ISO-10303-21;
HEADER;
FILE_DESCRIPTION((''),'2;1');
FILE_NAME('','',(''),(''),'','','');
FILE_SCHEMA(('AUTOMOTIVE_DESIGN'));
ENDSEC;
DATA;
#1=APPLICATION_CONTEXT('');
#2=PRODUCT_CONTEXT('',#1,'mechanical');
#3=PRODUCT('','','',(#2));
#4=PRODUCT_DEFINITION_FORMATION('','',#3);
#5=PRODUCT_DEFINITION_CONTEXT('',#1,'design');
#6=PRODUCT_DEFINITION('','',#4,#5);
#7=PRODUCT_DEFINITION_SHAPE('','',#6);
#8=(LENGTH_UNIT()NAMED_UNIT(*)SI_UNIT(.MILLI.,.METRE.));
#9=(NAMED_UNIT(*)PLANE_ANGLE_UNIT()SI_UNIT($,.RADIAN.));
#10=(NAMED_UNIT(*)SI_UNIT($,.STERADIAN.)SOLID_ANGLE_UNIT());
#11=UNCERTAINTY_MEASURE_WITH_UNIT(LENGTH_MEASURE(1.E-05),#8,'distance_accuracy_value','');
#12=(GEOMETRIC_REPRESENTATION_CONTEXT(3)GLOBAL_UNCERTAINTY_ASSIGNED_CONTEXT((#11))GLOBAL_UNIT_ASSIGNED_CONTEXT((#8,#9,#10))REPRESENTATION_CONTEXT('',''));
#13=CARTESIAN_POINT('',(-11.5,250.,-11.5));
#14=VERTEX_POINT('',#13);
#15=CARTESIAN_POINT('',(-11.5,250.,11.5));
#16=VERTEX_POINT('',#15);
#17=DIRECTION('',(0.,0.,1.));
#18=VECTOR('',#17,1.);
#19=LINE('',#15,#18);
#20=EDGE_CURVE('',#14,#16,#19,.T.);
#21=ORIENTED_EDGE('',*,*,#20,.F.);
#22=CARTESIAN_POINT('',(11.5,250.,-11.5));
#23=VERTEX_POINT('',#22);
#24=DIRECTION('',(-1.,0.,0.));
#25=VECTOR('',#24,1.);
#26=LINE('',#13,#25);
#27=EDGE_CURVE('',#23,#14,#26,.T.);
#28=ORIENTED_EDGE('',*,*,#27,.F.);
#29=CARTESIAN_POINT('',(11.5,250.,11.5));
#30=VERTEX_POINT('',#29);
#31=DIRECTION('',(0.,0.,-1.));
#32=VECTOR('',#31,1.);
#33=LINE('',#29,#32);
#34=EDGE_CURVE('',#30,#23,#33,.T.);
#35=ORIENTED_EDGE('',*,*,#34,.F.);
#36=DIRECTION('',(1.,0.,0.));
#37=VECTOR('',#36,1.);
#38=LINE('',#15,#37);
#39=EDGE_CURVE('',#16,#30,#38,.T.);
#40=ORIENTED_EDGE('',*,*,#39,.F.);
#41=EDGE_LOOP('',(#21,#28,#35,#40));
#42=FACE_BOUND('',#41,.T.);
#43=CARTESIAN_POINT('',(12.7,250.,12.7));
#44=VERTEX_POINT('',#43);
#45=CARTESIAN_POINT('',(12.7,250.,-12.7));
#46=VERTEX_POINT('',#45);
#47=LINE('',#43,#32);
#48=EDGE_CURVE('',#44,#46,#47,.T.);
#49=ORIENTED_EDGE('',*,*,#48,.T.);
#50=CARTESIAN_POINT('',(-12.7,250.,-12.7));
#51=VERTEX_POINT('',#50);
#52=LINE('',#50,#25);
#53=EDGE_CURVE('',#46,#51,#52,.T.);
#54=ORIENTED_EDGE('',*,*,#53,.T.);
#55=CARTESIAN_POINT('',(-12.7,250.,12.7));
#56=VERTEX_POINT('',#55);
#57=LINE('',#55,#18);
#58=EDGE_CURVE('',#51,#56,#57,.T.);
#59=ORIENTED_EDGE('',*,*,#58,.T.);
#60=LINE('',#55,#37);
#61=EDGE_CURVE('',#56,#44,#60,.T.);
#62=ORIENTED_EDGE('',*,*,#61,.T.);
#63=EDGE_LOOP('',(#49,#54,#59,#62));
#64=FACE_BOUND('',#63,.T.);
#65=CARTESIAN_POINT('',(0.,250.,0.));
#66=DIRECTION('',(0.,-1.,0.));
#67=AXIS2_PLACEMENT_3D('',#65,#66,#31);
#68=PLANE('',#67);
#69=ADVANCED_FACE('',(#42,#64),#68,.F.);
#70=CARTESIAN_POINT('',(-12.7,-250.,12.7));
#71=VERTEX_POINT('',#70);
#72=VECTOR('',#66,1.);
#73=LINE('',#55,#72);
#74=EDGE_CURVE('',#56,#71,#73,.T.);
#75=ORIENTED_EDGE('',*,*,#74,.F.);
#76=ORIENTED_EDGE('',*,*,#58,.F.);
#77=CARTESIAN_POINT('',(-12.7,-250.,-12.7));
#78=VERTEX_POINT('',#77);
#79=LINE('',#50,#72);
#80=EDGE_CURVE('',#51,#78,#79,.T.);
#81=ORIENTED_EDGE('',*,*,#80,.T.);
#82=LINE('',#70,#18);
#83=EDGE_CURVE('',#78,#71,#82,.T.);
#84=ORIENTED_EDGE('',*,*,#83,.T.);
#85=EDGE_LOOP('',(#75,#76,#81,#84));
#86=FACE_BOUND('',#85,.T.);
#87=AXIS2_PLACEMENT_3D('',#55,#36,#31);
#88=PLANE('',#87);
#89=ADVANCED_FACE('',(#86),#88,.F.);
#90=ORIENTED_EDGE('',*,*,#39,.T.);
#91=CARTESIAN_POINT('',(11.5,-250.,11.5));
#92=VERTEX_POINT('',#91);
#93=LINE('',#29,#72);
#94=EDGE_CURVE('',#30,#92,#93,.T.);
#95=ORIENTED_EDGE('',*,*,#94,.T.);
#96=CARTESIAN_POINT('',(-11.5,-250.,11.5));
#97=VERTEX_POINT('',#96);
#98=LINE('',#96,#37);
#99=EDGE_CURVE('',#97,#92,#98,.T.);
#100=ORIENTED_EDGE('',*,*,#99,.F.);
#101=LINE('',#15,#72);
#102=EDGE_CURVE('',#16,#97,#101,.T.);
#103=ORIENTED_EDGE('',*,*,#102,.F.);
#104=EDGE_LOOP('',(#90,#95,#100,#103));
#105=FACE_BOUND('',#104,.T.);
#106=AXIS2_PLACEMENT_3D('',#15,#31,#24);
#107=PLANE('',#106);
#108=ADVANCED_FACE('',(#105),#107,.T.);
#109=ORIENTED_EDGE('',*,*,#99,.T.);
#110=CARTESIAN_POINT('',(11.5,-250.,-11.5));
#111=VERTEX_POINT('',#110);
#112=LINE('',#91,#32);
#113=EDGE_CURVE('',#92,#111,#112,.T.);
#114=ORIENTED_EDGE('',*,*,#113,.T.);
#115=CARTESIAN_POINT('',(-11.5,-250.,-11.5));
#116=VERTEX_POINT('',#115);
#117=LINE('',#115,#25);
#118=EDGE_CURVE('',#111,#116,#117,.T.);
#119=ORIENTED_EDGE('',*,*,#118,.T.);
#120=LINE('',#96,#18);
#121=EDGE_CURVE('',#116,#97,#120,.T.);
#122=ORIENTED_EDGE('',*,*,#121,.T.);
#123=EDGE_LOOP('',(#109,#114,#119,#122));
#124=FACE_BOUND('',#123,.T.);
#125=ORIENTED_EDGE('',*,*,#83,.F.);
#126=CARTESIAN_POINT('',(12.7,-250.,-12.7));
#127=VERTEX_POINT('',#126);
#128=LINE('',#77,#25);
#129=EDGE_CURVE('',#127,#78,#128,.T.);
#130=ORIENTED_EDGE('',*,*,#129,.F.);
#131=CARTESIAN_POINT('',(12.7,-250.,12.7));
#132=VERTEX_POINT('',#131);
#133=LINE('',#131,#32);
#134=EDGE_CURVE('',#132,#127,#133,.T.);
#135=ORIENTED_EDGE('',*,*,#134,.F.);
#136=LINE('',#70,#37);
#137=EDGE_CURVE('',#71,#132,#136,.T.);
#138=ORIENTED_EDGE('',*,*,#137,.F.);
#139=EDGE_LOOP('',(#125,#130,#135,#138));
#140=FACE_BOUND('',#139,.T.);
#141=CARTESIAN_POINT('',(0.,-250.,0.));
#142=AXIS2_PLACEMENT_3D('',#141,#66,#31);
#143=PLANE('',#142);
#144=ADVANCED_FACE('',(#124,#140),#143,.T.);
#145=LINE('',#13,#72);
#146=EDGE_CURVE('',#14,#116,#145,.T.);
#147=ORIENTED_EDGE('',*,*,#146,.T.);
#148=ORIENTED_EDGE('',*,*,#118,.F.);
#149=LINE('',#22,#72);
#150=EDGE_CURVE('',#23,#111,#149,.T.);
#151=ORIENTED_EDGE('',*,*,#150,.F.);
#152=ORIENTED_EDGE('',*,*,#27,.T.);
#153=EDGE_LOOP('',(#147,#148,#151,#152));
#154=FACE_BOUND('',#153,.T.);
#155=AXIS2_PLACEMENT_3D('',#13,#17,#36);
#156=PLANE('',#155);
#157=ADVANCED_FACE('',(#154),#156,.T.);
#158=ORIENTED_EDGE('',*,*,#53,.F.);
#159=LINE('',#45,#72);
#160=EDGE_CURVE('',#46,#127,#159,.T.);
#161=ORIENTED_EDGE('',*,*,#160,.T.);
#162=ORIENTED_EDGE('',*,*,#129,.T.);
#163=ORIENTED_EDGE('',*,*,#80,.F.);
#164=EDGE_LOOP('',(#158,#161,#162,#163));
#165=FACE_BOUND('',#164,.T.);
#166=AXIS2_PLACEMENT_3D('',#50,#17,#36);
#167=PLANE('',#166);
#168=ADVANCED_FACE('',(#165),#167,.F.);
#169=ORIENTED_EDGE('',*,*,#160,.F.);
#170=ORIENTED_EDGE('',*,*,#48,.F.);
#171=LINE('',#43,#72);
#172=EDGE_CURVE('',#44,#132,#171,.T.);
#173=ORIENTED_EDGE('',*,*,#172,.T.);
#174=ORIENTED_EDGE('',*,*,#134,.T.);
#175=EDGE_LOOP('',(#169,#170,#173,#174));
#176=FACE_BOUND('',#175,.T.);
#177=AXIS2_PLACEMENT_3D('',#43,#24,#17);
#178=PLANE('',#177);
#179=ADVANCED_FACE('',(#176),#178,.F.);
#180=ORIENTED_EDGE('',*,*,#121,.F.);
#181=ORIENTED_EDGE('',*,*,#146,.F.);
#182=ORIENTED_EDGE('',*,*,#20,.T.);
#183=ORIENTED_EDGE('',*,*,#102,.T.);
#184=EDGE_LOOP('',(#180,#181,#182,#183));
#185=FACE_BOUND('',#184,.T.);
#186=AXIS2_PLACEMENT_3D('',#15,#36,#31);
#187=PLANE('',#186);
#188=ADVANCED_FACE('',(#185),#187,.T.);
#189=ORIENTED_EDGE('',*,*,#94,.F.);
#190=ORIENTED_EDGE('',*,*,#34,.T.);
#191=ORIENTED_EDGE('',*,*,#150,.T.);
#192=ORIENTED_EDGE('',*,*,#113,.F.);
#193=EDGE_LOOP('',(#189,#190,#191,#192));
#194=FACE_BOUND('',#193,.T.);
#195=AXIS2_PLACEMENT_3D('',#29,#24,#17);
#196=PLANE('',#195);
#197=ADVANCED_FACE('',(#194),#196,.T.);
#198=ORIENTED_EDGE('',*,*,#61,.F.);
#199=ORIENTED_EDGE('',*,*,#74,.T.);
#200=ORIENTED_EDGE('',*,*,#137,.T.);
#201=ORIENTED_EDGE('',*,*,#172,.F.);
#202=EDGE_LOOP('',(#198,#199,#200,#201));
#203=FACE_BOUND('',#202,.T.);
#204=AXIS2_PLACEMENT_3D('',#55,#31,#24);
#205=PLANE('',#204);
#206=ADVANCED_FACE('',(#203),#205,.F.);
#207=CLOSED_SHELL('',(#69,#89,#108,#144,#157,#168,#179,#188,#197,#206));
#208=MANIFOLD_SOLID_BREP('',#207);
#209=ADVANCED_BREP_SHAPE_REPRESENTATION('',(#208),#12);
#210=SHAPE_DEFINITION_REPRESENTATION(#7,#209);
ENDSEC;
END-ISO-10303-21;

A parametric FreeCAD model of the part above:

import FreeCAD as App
import Part
import Sketcher


def add_polygon(sketch, points):
    """Adds a closed chain of lines whose ends are joined by coincident constraints."""
    first, n = sketch.GeometryCount, len(points)
    for a, b in zip(points, points[1:] + points[:1]):
        sketch.addGeometry(Part.LineSegment(App.Vector(*a, 0), App.Vector(*b, 0)), False)
    for i in range(n):
        sketch.addConstraint(Sketcher.Constraint("Coincident", first + i, 2, first + (i + 1) % n, 1))

doc = App.newDocument("Part")
body = doc.addObject("PartDesign::Body", "Body")

sketch1 = body.newObject("Sketcher::SketchObject", "Sketch")
sketch1.AttachmentSupport = (doc.getObject("XZ_Plane"), [""])
sketch1.MapMode = "FlatFace"
add_polygon(sketch1, [(-12.7, -12.7), (-12.7, 12.7), (12.7, 12.7), (12.7, -12.7)])
add_polygon(sketch1, [(11.5, 11.5), (-11.5, 11.5), (-11.5, -11.5), (11.5, -11.5)])
sketch1.addConstraint([
    Sketcher.Constraint("Vertical", 0),
    Sketcher.Constraint("Horizontal", 1),
    Sketcher.Constraint("Vertical", 2),
    Sketcher.Constraint("Horizontal", 3),
    Sketcher.Constraint("Horizontal", 4),
    Sketcher.Constraint("Vertical", 5),
    Sketcher.Constraint("Horizontal", 6),
    Sketcher.Constraint("Vertical", 7),
    Sketcher.Constraint("Symmetric", 0, 2, 2, 2, -1, 1),
    Sketcher.Constraint("Symmetric", 4, 2, 6, 2, -1, 1),
    Sketcher.Constraint("Equal", 3, 0),
    Sketcher.Constraint("Equal", 6, 5),
    Sketcher.Constraint("DistanceX", 4, 2, 4, 1, 23.0),
    Sketcher.Constraint("DistanceX", 1, 1, 1, 2, 25.4),
])
pad1 = body.newObject("PartDesign::Pad", "Pad")
pad1.Profile = sketch1
pad1.Length = 500
pad1.Midplane = True

doc.recompute()
